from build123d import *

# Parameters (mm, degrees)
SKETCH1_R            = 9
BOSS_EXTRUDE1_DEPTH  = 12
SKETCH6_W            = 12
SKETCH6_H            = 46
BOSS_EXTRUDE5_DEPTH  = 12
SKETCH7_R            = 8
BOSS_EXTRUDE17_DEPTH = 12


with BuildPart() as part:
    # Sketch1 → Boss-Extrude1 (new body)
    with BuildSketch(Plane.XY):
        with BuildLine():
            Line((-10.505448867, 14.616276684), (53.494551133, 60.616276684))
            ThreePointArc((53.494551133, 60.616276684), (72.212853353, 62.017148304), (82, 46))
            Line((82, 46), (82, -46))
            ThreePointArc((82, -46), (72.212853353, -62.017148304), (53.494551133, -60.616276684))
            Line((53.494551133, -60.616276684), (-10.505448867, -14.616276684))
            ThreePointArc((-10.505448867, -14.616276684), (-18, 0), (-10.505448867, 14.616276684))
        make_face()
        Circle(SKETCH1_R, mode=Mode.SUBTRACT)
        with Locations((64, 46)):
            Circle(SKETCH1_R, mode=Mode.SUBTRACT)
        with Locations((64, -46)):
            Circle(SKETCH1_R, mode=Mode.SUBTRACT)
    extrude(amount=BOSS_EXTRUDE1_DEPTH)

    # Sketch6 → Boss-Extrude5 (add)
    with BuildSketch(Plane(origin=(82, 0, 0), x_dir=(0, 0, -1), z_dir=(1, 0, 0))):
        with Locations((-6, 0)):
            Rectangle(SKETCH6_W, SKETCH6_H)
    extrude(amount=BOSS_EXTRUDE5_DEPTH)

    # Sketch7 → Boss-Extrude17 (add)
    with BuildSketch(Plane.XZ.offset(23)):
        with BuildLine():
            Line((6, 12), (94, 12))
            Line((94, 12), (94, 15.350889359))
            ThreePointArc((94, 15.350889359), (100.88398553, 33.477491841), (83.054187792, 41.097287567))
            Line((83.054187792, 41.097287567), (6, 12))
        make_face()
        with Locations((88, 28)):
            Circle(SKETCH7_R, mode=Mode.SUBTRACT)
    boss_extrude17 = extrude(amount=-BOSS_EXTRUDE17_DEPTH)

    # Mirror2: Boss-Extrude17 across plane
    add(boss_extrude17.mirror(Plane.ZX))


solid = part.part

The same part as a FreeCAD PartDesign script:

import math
import FreeCAD as App
import Part
import Sketcher
from FreeCAD import Vector
Q = App.Units.Quantity

doc = App.newDocument("Part")
body = doc.addObject("PartDesign::Body", "Body")

# Sketch on XY plane
sketch1 = doc.addObject("Sketcher::SketchObject", "Sketch")
body.addObject(sketch1)
sketch1.AttachmentSupport = (doc.XY_Plane, [""])
sketch1.MapMode = "FlatFace"
sketch1.addGeometry([
    Part.LineSegment(Vector(53.494551, 60.616277, 0), Vector(-10.505449, 14.616277, 0)),  # 0
    Part.ArcOfCircle(Part.Circle(Vector(0, 0, 0), Vector(0, 0, 1), 18), math.radians(125.706691), math.radians(234.293309)),  # 1
    Part.LineSegment(Vector(-10.505449, -14.616277, 0), Vector(53.494551, -60.616277, 0)),  # 2
    Part.ArcOfCircle(Part.Circle(Vector(64, -46, 0), Vector(0, 0, 1), 18), math.radians(-125.706691), math.radians(0)),  # 3
    Part.LineSegment(Vector(82, -46, 0), Vector(82, 46, 0)),  # 4
    Part.ArcOfCircle(Part.Circle(Vector(64, 46, 0), Vector(0, 0, 1), 18), math.radians(0), math.radians(125.706691)),  # 5
    Part.Circle(Vector(64, -46, 0), Vector(0, 0, 1), 9),  # 6
    Part.Circle(Vector(64, 46, 0), Vector(0, 0, 1), 9),  # 7
    Part.Circle(Vector(0, 0, 0), Vector(0, 0, 1), 9),  # 8
], False)
sketch1.addConstraint([
    Sketcher.Constraint("Tangent", 0, 2, 1, 1),
    Sketcher.Constraint("Tangent", 1, 2, 2, 1),
    Sketcher.Constraint("Tangent", 2, 2, 3, 1),
    Sketcher.Constraint("Tangent", 3, 2, 4, 1),
    Sketcher.Constraint("Tangent", 4, 2, 5, 1),
    Sketcher.Constraint("Tangent", 5, 2, 0, 1),
    Sketcher.Constraint("Vertical", 4),
    Sketcher.Constraint("Coincident", 1, 3, -1, 1),
    Sketcher.Constraint("Coincident", 8, 3, -1, 1),
    Sketcher.Constraint("Coincident", 6, 3, 3, 3),
    Sketcher.Constraint("Coincident", 7, 3, 5, 3),
    Sketcher.Constraint("Equal", 1, 3),
    Sketcher.Constraint("Equal", 3, 5),
    Sketcher.Constraint("Equal", 6, 7),
    Sketcher.Constraint("Equal", 7, 8),
    Sketcher.Constraint("Vertical", 0, 2, 1, 2),
    Sketcher.Constraint("Diameter", 6, Q("18 mm")),
    Sketcher.Constraint("Radius", 1, Q("18 mm")),
    Sketcher.Constraint("DistanceY", 4, 1, 4, 2, Q("92 mm")),
    Sketcher.Constraint("DistanceX", -1, 1, 3, 3, Q("64 mm")),
])
pad1 = doc.addObject("PartDesign::Pad", "Pad")
body.addObject(pad1)
pad1.Profile = sketch1
pad1.Length = 12

# Sketch on YZ plane
sketch2 = doc.addObject("Sketcher::SketchObject", "Sketch001")
body.addObject(sketch2)
sketch2.AttachmentSupport = (doc.YZ_Plane, [""])
sketch2.MapMode = "FlatFace"
sketch2.AttachmentOffset = App.Placement(Vector(0, 0, 82), App.Rotation())
sketch2.addGeometry([
    Part.LineSegment(Vector(23, 12, 0), Vector(-23, 12, 0)),
    Part.LineSegment(Vector(-23, 12, 0), Vector(-23, 0, 0)),
    Part.LineSegment(Vector(-23, 0, 0), Vector(23, 0, 0)),
    Part.LineSegment(Vector(23, 0, 0), Vector(23, 12, 0)),
], False)
sketch2.addConstraint([
    Sketcher.Constraint("Coincident", 0, 2, 1, 1),
    Sketcher.Constraint("Coincident", 1, 2, 2, 1),
    Sketcher.Constraint("Coincident", 2, 2, 3, 1),
    Sketcher.Constraint("Coincident", 3, 2, 0, 1),
    Sketcher.Constraint("Horizontal", 0),
    Sketcher.Constraint("Vertical", 1),
    Sketcher.Constraint("Horizontal", 2),
    Sketcher.Constraint("Vertical", 3),
    Sketcher.Constraint("Symmetric", 1, 2, 2, 2, -1, 1),
    Sketcher.Constraint("DistanceX", 0, 2, 0, 1, Q("46 mm")),
    Sketcher.Constraint("DistanceY", 1, 2, 1, 1, Q("12 mm")),
])
pad2 = doc.addObject("PartDesign::Pad", "Pad001")
body.addObject(pad2)
pad2.Profile = sketch2
pad2.Length = 12

# Sketch on XZ plane
sketch3 = doc.addObject("Sketcher::SketchObject", "Sketch002")
body.addObject(sketch3)
sketch3.AttachmentSupport = (doc.XZ_Plane, [""])
sketch3.MapMode = "FlatFace"
sketch3.AttachmentOffset = App.Placement(Vector(0, 0, 23), App.Rotation())
sketch3.addGeometry([
    Part.LineSegment(Vector(6, 12, 0), Vector(94, 12, 0)),  # 0
    Part.LineSegment(Vector(94, 12, 0), Vector(94, 15.350889, 0)),  # 1
    Part.ArcOfCircle(Part.Circle(Vector(88, 28, 0), Vector(0, 0, 1), 14), math.radians(-64.623066), math.radians(110.687595)),  # 2
    Part.LineSegment(Vector(83.054188, 41.097288, 0), Vector(6, 12, 0)),  # 3
    Part.Circle(Vector(88, 28, 0), Vector(0, 0, 1), 8),  # 4
], False)
sketch3.addConstraint([
    Sketcher.Constraint("Coincident", 0, 2, 1, 1),
    Sketcher.Constraint("Coincident", 1, 2, 2, 1),
    Sketcher.Constraint("Tangent", 2, 2, 3, 1),
    Sketcher.Constraint("Coincident", 3, 2, 0, 1),
    Sketcher.Constraint("Horizontal", 0),
    Sketcher.Constraint("Vertical", 1),
    Sketcher.Constraint("Coincident", 4, 3, 2, 3),
    Sketcher.Constraint("Diameter", 4, Q("16 mm")),
    Sketcher.Constraint("Radius", 2, Q("14 mm")),
    Sketcher.Constraint("DistanceX", 0, 1, 0, 2, Q("88 mm")),
    Sketcher.Constraint("DistanceX", -1, 1, 2, 3, Q("88 mm")),
    Sketcher.Constraint("DistanceY", -1, 1, 2, 3, Q("28 mm")),
    Sketcher.Constraint("DistanceX", -1, 1, 0, 2, Q("94 mm")),
    Sketcher.Constraint("DistanceY", -1, 1, 0, 2, Q("12 mm")),
])
pad3 = doc.addObject("PartDesign::Pad", "Pad002")
body.addObject(pad3)
pad3.Profile = sketch3
pad3.Length = 12
pad3.Reversed = True
doc.recompute()

mirrored = doc.addObject("PartDesign::Mirrored", "Mirrored")
body.addObject(mirrored)
mirrored.Originals = [pad3]
mirrored.MirrorPlane = (doc.XZ_Plane, [""])
body.Tip = mirrored

doc.recompute()
